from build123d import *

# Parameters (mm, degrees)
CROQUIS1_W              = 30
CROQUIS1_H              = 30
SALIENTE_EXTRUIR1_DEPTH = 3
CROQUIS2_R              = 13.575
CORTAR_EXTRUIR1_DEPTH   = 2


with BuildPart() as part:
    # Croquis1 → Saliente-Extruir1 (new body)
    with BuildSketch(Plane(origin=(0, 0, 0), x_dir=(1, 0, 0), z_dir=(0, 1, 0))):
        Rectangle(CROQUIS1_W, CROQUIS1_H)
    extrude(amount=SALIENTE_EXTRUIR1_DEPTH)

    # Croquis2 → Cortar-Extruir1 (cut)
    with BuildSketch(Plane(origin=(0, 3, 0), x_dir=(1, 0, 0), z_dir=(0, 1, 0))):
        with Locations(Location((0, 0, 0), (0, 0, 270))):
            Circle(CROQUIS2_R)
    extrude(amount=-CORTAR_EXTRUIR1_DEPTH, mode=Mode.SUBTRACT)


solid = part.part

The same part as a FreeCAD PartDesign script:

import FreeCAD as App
import Part
import Sketcher

V = App.Vector
Q = App.Units.Quantity


def add_polygon(sketch, points):
    """Adds a closed chain of lines whose ends are joined by coincident constraints."""
    first, n = sketch.GeometryCount, len(points)
    for a, b in zip(points, points[1:] + points[:1]):
        sketch.addGeometry(Part.LineSegment(App.Vector(*a, 0), App.Vector(*b, 0)), False)
    for i in range(n):
        sketch.addConstraint(Sketcher.Constraint("Coincident", first + i, 2, first + (i + 1) % n, 1))

doc = App.newDocument("Part")
body = doc.addObject("PartDesign::Body", "Body")

sketch1 = doc.addObject("Sketcher::SketchObject", "Sketch")
body.addObject(sketch1)
sketch1.AttachmentSupport = (doc.XZ_Plane, [""])
sketch1.MapMode = "FlatFace"
add_polygon(sketch1, [(-15, -15), (-15, 15), (15, 15), (15, -15)])
sketch1.addConstraint(Sketcher.Constraint("Vertical", 0))
sketch1.addConstraint(Sketcher.Constraint("Horizontal", 1))
sketch1.addConstraint(Sketcher.Constraint("Vertical", 2))
sketch1.addConstraint(Sketcher.Constraint("Horizontal", 3))
sketch1.addConstraint(Sketcher.Constraint("Symmetric", 0, 2, 2, 2, -1, 1))
sketch1.addConstraint(Sketcher.Constraint("Equal", 3, 0))
sketch1.addConstraint(Sketcher.Constraint("DistanceX", 1, 1, 1, 2, Q("30 mm")))
pad1 = doc.addObject("PartDesign::Pad", "Pad")
body.addObject(pad1)
pad1.Profile = sketch1
pad1.Length = 3
pad1.Reversed = True

sketch2 = doc.addObject("Sketcher::SketchObject", "Sketch001")
body.addObject(sketch2)
sketch2.AttachmentSupport = (doc.XZ_Plane, [""])
sketch2.MapMode = "FlatFace"
sketch2.AttachmentOffset = App.Placement(V(0, 0, -3), App.Rotation())
sketch2.addGeometry(Part.Circle(V(0, 0, 0), V(0, 0, 1), 13.575), False)
sketch2.addConstraint(Sketcher.Constraint("Coincident", 0, 3, -1, 1))
sketch2.addConstraint(Sketcher.Constraint("Diameter", 0, Q("27.15 mm")))
pocket1 = doc.addObject("PartDesign::Pocket", "Pocket")
body.addObject(pocket1)
pocket1.Profile = sketch2
pocket1.Length = 2
pocket1.Reversed = True

doc.recompute()
